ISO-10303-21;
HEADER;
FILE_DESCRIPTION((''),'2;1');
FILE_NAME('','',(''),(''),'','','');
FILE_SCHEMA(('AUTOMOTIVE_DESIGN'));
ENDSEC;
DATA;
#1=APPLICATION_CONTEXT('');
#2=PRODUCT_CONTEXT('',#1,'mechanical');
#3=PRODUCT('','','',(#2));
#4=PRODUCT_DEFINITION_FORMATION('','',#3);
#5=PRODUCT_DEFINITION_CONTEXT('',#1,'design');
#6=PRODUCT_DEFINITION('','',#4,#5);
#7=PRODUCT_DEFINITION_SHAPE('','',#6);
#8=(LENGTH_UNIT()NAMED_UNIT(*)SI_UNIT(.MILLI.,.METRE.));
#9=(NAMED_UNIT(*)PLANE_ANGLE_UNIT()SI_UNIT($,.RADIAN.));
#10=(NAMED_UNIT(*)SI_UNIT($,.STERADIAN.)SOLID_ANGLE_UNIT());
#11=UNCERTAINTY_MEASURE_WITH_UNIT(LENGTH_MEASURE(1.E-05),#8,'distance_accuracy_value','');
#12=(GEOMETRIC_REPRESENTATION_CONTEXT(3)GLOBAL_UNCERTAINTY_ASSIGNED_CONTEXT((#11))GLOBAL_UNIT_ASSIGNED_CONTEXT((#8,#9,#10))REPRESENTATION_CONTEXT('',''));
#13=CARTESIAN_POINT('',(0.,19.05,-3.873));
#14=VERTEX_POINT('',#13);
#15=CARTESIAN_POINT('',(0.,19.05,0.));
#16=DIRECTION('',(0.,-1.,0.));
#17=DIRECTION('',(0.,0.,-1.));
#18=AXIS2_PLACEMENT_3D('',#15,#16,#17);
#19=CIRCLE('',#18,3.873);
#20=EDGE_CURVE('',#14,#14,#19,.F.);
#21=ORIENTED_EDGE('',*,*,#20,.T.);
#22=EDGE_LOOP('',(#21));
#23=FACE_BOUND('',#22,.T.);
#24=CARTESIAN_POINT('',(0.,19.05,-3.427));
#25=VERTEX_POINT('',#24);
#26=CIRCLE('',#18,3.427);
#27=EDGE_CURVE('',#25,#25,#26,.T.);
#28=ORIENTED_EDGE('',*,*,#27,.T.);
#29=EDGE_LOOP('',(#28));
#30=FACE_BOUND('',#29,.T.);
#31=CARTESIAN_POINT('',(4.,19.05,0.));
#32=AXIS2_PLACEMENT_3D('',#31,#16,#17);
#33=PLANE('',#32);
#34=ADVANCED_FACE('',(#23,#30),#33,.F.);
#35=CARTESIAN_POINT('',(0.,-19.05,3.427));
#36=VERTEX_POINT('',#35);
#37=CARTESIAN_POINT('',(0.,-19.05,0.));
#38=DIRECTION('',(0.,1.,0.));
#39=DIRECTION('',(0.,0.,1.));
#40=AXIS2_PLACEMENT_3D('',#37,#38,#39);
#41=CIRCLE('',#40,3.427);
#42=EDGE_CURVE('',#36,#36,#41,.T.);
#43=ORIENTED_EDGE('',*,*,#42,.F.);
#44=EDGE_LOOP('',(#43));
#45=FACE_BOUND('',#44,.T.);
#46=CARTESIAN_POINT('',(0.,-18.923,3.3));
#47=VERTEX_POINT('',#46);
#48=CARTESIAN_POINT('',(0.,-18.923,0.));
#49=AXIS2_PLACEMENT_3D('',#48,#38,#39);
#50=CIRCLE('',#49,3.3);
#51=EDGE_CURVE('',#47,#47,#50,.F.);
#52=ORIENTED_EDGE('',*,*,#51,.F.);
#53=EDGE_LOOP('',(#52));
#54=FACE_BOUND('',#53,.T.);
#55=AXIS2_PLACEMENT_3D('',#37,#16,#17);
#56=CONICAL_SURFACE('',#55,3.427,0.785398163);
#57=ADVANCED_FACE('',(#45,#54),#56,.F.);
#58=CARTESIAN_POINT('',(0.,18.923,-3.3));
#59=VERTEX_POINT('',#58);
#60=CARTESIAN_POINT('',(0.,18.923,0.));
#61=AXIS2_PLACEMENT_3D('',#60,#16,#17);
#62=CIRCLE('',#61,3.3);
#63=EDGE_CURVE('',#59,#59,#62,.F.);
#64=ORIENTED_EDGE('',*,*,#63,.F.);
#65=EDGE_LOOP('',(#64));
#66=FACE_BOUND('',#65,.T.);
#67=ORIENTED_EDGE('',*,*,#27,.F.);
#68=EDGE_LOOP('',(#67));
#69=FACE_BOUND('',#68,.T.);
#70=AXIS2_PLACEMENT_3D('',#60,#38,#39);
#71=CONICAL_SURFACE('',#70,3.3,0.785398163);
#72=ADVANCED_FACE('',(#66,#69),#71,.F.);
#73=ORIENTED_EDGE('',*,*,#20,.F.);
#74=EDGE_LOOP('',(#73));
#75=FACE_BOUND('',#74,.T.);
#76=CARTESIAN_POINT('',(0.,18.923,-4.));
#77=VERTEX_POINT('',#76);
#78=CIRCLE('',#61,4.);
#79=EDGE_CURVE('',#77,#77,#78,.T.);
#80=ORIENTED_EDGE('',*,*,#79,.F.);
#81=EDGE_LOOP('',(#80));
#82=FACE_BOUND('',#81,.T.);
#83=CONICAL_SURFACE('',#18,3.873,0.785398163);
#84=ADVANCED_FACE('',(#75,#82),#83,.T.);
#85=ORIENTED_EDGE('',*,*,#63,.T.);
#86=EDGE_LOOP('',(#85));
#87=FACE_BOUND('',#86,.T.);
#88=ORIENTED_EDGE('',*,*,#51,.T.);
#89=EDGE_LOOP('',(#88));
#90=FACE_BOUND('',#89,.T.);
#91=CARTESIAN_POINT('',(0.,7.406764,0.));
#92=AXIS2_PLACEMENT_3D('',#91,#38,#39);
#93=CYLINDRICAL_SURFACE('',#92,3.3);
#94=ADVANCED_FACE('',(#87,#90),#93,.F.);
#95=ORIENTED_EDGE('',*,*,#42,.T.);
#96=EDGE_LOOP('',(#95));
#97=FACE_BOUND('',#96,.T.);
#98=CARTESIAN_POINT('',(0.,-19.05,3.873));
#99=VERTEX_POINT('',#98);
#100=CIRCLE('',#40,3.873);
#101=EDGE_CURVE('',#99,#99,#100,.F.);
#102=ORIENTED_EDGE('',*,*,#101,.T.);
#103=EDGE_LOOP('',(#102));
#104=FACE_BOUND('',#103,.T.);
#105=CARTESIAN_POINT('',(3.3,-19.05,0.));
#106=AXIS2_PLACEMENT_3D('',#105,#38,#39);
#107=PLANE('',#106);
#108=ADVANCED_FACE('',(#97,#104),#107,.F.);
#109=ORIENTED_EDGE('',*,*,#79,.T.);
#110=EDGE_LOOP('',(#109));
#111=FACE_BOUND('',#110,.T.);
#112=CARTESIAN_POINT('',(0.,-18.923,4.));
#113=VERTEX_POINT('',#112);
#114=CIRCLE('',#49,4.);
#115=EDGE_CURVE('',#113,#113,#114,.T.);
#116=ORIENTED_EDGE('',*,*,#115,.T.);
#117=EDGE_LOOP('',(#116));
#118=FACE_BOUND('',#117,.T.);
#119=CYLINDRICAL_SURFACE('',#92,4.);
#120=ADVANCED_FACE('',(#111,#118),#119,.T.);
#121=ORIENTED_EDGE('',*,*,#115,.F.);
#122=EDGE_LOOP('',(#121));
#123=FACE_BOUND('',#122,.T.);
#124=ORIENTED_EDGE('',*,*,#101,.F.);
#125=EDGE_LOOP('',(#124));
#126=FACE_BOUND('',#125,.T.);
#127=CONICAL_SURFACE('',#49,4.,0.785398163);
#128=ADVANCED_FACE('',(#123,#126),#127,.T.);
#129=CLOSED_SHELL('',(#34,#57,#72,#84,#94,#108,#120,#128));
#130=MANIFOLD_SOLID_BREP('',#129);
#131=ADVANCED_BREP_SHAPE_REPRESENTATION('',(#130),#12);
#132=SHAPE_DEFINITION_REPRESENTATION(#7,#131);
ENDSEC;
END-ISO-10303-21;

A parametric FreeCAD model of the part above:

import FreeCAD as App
import Part
import Sketcher
Q = App.Units.Quantity


def edges_at(feature, points):
    """Names of the edges that pass closest to the given points."""
    edges = feature.Shape.Edges
    near = lambda p: min(range(len(edges)), key=lambda i: edges[i].distToShape(Part.Vertex(*p))[0])
    return sorted({f"Edge{near(p) + 1}" for p in points})


def add_polygon(sketch, points):
    """Adds a closed chain of lines whose ends are joined by coincident constraints."""
    first, n = sketch.GeometryCount, len(points)
    for a, b in zip(points, points[1:] + points[:1]):
        sketch.addGeometry(Part.LineSegment(App.Vector(*a, 0), App.Vector(*b, 0)), False)
    for i in range(n):
        sketch.addConstraint(Sketcher.Constraint("Coincident", first + i, 2, first + (i + 1) % n, 1))

doc = App.newDocument("Part")
body = doc.addObject("PartDesign::Body", "Body")

# Sketch on XY plane
sketch1 = body.newObject("Sketcher::SketchObject", "Sketch")
sketch1.AttachmentSupport = (doc.getObject("XY_Plane"), [""])
sketch1.MapMode = "FlatFace"
add_polygon(sketch1, [(3.3, 19.1), (3.3, -19.1), (4, -19.1), (4, 19.1)])  # lines 0-3
sketch1.addConstraint([
    Sketcher.Constraint("Vertical", 0),
    Sketcher.Constraint("Horizontal", 1),
    Sketcher.Constraint("Vertical", 2),
    Sketcher.Constraint("Horizontal", 3),
    Sketcher.Constraint("DistanceY", 0, 2, 0, 1, Q("1.5 in")),
    Sketcher.Constraint("DistanceY", 0, 2, -1, 1, Q("0.75 in")),
    Sketcher.Constraint("DistanceX", 1, 1, 1, 2, Q("0.7 mm")),
    Sketcher.Constraint("DistanceX", -1, 1, 0, 2, Q("3.3 mm")),
])
revolution = body.newObject("PartDesign::Revolution", "Revolution")
revolution.Profile = sketch1
revolution.ReferenceAxis = (sketch1, ["V_Axis"])
revolution.Angle = 360
doc.recompute()

chamfer = body.newObject("PartDesign::Chamfer", "Chamfer")
chamfer.Base = (revolution, edges_at(revolution, [
    (-4, 19.05, 0),
    (-4, -19.05, 0),
    (-3.3, -19.05, 0),
    (-3.3, 19.05, 0),
]))
chamfer.Size = Q("0.005 in")

doc.recompute()
